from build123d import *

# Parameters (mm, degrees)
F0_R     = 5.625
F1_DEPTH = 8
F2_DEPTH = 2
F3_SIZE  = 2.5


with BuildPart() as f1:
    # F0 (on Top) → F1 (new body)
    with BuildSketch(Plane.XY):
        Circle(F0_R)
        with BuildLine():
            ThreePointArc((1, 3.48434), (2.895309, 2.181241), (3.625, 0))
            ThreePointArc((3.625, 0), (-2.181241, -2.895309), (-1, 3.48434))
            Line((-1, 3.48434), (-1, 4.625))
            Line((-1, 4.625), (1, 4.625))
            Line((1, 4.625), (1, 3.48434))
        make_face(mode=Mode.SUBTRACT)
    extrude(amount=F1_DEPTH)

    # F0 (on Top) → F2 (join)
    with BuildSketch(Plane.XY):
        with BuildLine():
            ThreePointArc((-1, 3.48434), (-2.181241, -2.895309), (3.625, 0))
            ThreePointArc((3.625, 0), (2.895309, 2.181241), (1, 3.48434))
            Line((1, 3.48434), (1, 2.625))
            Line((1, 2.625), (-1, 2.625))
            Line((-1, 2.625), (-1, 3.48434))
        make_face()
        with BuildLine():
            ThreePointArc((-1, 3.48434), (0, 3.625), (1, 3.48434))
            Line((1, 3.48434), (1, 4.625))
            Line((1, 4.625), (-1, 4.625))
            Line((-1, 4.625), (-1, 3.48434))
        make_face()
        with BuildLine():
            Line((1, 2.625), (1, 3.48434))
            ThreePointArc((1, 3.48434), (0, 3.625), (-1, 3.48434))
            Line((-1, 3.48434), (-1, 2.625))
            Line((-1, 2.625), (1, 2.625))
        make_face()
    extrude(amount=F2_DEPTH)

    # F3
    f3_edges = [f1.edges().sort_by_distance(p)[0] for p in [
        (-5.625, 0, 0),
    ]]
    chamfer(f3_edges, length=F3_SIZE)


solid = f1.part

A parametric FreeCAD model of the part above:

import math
import FreeCAD as App
import Part
import Sketcher
Q = App.Units.Quantity


def edges_at(feature, points):
    """Names of the edges that pass closest to the given points."""
    edges = feature.Shape.Edges
    near = lambda p: min(range(len(edges)), key=lambda i: edges[i].distToShape(Part.Vertex(*p))[0])
    return sorted({f"Edge{near(p) + 1}" for p in points})

doc = App.newDocument("Part")
params = doc.addObject("Spreadsheet::Sheet", "Params")
for row, (alias, value) in enumerate([
    ("sketch1_diameter", "11.25 mm"),
    ("sketch1_width", "2 mm"),
    ("pad1_length", "8 mm"),
    ("sketch2_width", "2 mm"),
    ("pad2_length", "2 mm"),
    ("chamfer_size", "2.5 mm"),
], start=1):
    params.set(f"A{row}", alias)
    params.set(f"B{row}", "=" + value)
    params.setAlias(f"B{row}", alias)

body = doc.addObject("PartDesign::Body", "Body")

# Sketch on XY plane
sketch1 = body.newObject("Sketcher::SketchObject", "Sketch")
sketch1.AttachmentSupport = (doc.getObject("XY_Plane"), [""])
sketch1.MapMode = "FlatFace"
sketch1.addGeometry([
    Part.Circle(App.Vector(0, 0, 0), App.Vector(0, 0, 1), 5.6),  # 0
    Part.LineSegment(App.Vector(1, 4.6, 0), App.Vector(1, 3.5, 0)),  # 1
    Part.ArcOfCircle(Part.Circle(App.Vector(0, 0, 0), App.Vector(0, 0, 1), 3.6), math.radians(0), math.radians(74)),  # 2
    Part.ArcOfCircle(Part.Circle(App.Vector(0, 0, 0), App.Vector(0, 0, 1), 3.6), math.radians(106), math.radians(360)),  # 3
    Part.LineSegment(App.Vector(-1, 3.5, 0), App.Vector(-1, 4.6, 0)),  # 4
    Part.LineSegment(App.Vector(-1, 4.6, 0), App.Vector(1, 4.6, 0)),  # 5
], False)
sketch1.addConstraint([
    Sketcher.Constraint("Coincident", 1, 2, 2, 2),
    Sketcher.Constraint("Tangent", 2, 1, 3, 2),
    Sketcher.Constraint("Coincident", 3, 1, 4, 1),
    Sketcher.Constraint("Coincident", 4, 2, 5, 1),
    Sketcher.Constraint("Coincident", 5, 2, 1, 1),
    Sketcher.Constraint("Vertical", 1),
    Sketcher.Constraint("Vertical", 4),
    Sketcher.Constraint("Horizontal", 5),
    Sketcher.Constraint("Coincident", 0, 3, -1, 1),
    Sketcher.Constraint("Coincident", 2, 3, -1, 1),
    Sketcher.Constraint("Equal", 2, 3),
    Sketcher.Constraint("PointOnObject", 2, 1, -1),
    Sketcher.Constraint("Horizontal", 1, 2, 3, 1),
    Sketcher.Constraint("Diameter", 0, Q("11.25 mm")),
    Sketcher.Constraint("DistanceX", 5, 1, 5, 2, Q("2 mm")),
    Sketcher.Constraint("Radius", 2, Q("3.624999 mm")),
    Sketcher.Constraint("DistanceY", -1, 1, 4, 2, Q("4.625 mm")),
])
sketch1.setExpression("Constraints[13]", "Params.sketch1_diameter")
sketch1.setExpression("Constraints[14]", "Params.sketch1_width")
pad1 = body.newObject("PartDesign::Pad", "Pad")
pad1.Profile = sketch1
pad1.setExpression("Length", "Params.pad1_length")

# Sketch on XY plane
sketch2 = body.newObject("Sketcher::SketchObject", "Sketch001")
sketch2.AttachmentSupport = (doc.getObject("XY_Plane"), [""])
sketch2.MapMode = "FlatFace"
sketch2.addGeometry([
    Part.ArcOfCircle(Part.Circle(App.Vector(0, 0, 0), App.Vector(0, 0, 1), 3.6), math.radians(106), math.radians(360)),  # 0
    Part.ArcOfCircle(Part.Circle(App.Vector(0, 0, 0), App.Vector(0, 0, 1), 3.6), math.radians(0), math.radians(74)),  # 1
    Part.LineSegment(App.Vector(1, 3.5, 0), App.Vector(1, 4.6, 0)),  # 2
    Part.LineSegment(App.Vector(1, 4.6, 0), App.Vector(-1, 4.6, 0)),  # 3
    Part.LineSegment(App.Vector(-1, 4.6, 0), App.Vector(-1, 3.5, 0)),  # 4
], False)
sketch2.addConstraint([
    Sketcher.Constraint("Tangent", 0, 2, 1, 1),
    Sketcher.Constraint("Coincident", 1, 2, 2, 1),
    Sketcher.Constraint("Coincident", 2, 2, 3, 1),
    Sketcher.Constraint("Coincident", 3, 2, 4, 1),
    Sketcher.Constraint("Coincident", 4, 2, 0, 1),
    Sketcher.Constraint("Vertical", 2),
    Sketcher.Constraint("Horizontal", 3),
    Sketcher.Constraint("Vertical", 4),
    Sketcher.Constraint("Coincident", 0, 3, -1, 1),
    Sketcher.Constraint("Equal", 0, 1),
    Sketcher.Constraint("PointOnObject", 0, 2, -1),
    Sketcher.Constraint("Horizontal", 1, 2, 4, 2),
    Sketcher.Constraint("DistanceX", 3, 2, 3, 1, Q("2 mm")),
    Sketcher.Constraint("Radius", 0, Q("3.625 mm")),
    Sketcher.Constraint("DistanceY", -1, 1, 2, 2, Q("4.625 mm")),
])
sketch2.setExpression("Constraints[12]", "Params.sketch2_width")
pad2 = body.newObject("PartDesign::Pad", "Pad001")
pad2.Profile = sketch2
pad2.setExpression("Length", "Params.pad2_length")
doc.recompute()

chamfer = body.newObject("PartDesign::Chamfer", "Chamfer")
chamfer.Base = (pad2, edges_at(pad2, [(-5.625, 0, 0)]))
chamfer.setExpression("Size", "Params.chamfer_size")

doc.recompute()
